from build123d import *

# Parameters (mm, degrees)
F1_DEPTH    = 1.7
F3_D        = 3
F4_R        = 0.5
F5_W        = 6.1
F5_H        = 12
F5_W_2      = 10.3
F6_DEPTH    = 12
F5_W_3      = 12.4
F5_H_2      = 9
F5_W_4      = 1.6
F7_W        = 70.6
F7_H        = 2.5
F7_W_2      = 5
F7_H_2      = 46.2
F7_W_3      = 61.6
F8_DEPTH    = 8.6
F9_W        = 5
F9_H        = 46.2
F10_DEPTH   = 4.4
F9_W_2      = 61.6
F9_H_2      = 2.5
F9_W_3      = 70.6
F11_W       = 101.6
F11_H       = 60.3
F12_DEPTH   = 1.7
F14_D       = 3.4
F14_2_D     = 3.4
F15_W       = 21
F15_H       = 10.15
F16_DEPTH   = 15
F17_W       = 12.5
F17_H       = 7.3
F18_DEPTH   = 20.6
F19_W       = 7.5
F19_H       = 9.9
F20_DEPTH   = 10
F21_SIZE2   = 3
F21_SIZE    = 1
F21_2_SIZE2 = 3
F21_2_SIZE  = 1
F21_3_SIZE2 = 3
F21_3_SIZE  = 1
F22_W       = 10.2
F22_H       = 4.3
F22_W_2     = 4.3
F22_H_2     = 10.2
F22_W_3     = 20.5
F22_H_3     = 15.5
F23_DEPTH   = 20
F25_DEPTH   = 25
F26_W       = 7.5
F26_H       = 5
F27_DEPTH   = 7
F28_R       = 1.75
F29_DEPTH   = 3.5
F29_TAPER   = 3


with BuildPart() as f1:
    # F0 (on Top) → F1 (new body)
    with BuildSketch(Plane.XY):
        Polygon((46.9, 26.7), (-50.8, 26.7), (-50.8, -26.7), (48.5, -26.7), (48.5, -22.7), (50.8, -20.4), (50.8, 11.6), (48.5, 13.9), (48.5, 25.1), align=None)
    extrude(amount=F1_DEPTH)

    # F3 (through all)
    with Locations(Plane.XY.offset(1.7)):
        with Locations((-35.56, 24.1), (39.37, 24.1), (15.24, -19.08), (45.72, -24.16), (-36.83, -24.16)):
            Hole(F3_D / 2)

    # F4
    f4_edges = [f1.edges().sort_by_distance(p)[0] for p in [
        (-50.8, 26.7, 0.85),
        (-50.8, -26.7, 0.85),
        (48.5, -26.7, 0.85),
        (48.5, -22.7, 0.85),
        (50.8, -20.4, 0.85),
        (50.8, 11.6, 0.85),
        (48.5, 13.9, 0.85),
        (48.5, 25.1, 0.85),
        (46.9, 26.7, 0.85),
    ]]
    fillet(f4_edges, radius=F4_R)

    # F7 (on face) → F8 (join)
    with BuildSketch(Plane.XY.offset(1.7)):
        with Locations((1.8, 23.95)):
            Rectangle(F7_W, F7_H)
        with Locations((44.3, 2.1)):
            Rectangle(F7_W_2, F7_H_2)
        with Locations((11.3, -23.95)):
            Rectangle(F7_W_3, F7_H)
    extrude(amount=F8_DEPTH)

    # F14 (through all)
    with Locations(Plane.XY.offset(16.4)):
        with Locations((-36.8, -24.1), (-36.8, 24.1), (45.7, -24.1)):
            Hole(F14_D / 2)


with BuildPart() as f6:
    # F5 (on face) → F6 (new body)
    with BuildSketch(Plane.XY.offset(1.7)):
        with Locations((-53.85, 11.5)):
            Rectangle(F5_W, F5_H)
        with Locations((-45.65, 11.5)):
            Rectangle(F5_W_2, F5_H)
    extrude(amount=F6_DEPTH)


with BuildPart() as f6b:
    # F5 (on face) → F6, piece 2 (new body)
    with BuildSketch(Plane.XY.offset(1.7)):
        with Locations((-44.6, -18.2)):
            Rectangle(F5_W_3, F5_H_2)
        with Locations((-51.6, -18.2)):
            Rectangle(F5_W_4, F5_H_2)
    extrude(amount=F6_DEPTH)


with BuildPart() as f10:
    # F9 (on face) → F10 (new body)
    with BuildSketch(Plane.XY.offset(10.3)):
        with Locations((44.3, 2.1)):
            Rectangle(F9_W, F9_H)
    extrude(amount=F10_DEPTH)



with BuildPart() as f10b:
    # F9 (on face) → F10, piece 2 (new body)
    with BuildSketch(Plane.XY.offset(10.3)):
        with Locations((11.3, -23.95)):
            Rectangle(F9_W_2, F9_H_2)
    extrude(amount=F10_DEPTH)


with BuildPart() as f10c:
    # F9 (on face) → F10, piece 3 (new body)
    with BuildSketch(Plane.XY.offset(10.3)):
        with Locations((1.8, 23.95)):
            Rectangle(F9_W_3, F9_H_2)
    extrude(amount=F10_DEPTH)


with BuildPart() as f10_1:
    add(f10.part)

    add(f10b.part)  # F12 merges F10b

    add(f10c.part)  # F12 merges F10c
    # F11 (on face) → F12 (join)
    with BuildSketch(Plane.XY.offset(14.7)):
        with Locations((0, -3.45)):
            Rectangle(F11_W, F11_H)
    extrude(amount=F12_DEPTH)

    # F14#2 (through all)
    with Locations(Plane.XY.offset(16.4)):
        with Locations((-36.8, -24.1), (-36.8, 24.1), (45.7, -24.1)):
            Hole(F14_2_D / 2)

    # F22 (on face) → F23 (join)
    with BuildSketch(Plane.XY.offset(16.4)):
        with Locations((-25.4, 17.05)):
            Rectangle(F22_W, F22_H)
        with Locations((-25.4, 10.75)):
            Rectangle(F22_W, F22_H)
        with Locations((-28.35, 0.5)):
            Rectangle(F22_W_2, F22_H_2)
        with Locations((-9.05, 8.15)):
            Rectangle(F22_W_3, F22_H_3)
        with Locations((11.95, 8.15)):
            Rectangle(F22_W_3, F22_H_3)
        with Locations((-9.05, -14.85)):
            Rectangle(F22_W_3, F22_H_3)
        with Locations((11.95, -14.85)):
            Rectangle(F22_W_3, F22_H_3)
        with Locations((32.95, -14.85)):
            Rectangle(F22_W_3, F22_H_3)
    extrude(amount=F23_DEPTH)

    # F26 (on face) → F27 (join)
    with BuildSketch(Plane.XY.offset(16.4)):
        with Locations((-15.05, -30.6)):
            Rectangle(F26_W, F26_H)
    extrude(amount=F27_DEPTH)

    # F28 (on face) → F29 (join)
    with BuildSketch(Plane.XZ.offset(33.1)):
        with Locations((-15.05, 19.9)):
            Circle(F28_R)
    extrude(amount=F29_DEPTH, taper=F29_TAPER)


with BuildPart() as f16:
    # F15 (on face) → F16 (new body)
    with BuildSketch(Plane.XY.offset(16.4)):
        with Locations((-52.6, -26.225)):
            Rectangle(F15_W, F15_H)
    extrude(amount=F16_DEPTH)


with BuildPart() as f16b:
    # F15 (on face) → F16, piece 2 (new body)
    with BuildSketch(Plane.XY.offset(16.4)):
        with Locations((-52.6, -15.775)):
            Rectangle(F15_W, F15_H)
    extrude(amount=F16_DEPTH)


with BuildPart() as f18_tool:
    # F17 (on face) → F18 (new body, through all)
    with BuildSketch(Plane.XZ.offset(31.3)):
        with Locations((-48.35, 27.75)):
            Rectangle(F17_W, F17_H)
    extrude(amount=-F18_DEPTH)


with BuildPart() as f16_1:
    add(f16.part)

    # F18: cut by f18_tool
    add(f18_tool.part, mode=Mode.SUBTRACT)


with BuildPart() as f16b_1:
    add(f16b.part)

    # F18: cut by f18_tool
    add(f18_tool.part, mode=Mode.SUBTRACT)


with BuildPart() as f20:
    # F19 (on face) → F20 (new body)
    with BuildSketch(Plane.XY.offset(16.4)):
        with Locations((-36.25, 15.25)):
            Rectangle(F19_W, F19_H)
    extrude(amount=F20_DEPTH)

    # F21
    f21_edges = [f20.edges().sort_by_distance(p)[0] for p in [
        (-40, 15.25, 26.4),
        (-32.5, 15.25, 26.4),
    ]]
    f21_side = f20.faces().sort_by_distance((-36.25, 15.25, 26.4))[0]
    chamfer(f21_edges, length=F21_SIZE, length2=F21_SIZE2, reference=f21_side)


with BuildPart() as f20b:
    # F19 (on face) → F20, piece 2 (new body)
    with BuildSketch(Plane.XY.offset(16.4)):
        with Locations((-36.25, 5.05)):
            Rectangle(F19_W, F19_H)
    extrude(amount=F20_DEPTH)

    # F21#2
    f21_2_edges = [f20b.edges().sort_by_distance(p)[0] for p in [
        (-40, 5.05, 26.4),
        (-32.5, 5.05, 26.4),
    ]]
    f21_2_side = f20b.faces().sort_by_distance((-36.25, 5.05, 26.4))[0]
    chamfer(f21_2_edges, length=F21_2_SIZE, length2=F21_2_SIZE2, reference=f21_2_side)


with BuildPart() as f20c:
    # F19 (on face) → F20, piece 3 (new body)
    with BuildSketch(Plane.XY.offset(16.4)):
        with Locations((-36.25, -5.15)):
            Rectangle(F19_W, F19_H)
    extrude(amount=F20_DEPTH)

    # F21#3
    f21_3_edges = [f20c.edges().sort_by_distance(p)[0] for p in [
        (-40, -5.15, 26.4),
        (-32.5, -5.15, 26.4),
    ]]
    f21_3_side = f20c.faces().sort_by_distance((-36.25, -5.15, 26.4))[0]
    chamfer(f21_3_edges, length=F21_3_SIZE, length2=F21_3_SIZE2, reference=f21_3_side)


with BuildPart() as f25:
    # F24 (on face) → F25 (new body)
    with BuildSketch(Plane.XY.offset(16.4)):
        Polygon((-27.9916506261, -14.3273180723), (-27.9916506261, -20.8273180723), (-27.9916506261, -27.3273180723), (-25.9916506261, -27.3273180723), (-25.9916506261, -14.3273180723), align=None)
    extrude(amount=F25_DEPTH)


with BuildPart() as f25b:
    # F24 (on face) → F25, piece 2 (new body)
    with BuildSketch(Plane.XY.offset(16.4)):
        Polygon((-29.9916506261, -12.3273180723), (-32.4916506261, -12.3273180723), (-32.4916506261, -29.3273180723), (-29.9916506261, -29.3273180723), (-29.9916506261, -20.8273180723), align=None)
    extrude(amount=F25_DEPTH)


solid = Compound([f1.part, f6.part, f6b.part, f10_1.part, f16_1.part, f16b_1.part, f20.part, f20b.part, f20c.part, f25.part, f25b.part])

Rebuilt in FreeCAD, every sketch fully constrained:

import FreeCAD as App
import Part
import Sketcher

V = App.Vector
Q = App.Units.Quantity


def edges_at(feature, points):
    """Names of the edges that pass closest to the given points."""
    edges = feature.Shape.Edges
    near = lambda p: min(range(len(edges)), key=lambda i: edges[i].distToShape(Part.Vertex(*p))[0])
    return sorted({f"Edge{near(p) + 1}" for p in points})


def add_polygon(sketch, points):
    """Adds a closed chain of lines whose ends are joined by coincident constraints."""
    first, n = sketch.GeometryCount, len(points)
    for a, b in zip(points, points[1:] + points[:1]):
        sketch.addGeometry(Part.LineSegment(App.Vector(*a, 0), App.Vector(*b, 0)), False)
    for i in range(n):
        sketch.addConstraint(Sketcher.Constraint("Coincident", first + i, 2, first + (i + 1) % n, 1))

doc = App.newDocument("Part")
body = doc.addObject("PartDesign::Body", "Body")

# Sketch on XY plane
sketch1 = body.newObject("Sketcher::SketchObject", "Sketch")
sketch1.AttachmentSupport = (doc.getObject("XY_Plane"), [""])
sketch1.MapMode = "FlatFace"
add_polygon(sketch1, [(46.9, 26.7), (-50.8, 26.7), (-50.8, -26.7), (48.5, -26.7), (48.5, -22.7), (50.8, -20.4), (50.8, 11.6), (48.5, 13.9), (48.5, 25.1)])  # lines 0-8
sketch1.addConstraint(Sketcher.Constraint("Horizontal", 0))
sketch1.addConstraint(Sketcher.Constraint("Vertical", 1))
sketch1.addConstraint(Sketcher.Constraint("Horizontal", 2))
sketch1.addConstraint(Sketcher.Constraint("Vertical", 3))
sketch1.addConstraint(Sketcher.Constraint("Vertical", 5))
sketch1.addConstraint(Sketcher.Constraint("Vertical", 7))
sketch1.addConstraint(Sketcher.Constraint("Perpendicular", 4, 6))
sketch1.addConstraint(Sketcher.Constraint("Parallel", 6, 8))
sketch1.addConstraint(Sketcher.Constraint("Vertical", 3, 2, 6, 2))
sketch1.addConstraint(Sketcher.Constraint("Equal", 4, 6))
sketch1.addConstraint(Sketcher.Constraint("DistanceY", 3, 1, 3, 2, Q("4 mm")))
sketch1.addConstraint(Sketcher.Constraint("DistanceY", 5, 1, 5, 2, Q("32 mm")))
sketch1.addConstraint(Sketcher.Constraint("DistanceX", 0, 2, 0, 1, Q("97.7 mm")))
sketch1.addConstraint(Sketcher.Constraint("DistanceX", 2, 1, 2, 2, Q("99.3 mm")))
sketch1.addConstraint(Sketcher.Constraint("DistanceY", 1, 2, 1, 1, Q("53.4 mm")))
sketch1.addConstraint(Sketcher.Constraint("DistanceY", 7, 1, 7, 2, Q("11.2 mm")))
sketch1.addConstraint(Sketcher.Constraint("DistanceX", 0, 2, -1, 1, Q("50.8 mm")))
sketch1.addConstraint(Sketcher.Constraint("DistanceY", -1, 1, 0, 2, Q("26.7 mm")))
pad1 = body.newObject("PartDesign::Pad", "Pad")
pad1.Profile = sketch1
pad1.Length = 1.7

# Sketch on XY plane
sketch2 = body.newObject("Sketcher::SketchObject", "Sketch001")
sketch2.AttachmentSupport = (doc.getObject("XY_Plane"), [""])
sketch2.MapMode = "FlatFace"
sketch2.AttachmentOffset = App.Placement(V(0, 0, 1.7), App.Rotation())
sketch2.addGeometry(Part.Circle(V(-35.6, 24.1, 0), V(0, 0, 1), 1.5), False)
sketch2.addGeometry(Part.Circle(V(39.4, 24.1, 0), V(0, 0, 1), 1.5), False)
sketch2.addGeometry(Part.Circle(V(15.2, -19.1, 0), V(0, 0, 1), 1.5), False)
sketch2.addGeometry(Part.Circle(V(45.7, -24.2, 0), V(0, 0, 1), 1.5), False)
sketch2.addGeometry(Part.Circle(V(-36.8, -24.2, 0), V(0, 0, 1), 1.5), False)
sketch2.addConstraint(Sketcher.Constraint("Equal", 0, 1))
sketch2.addConstraint(Sketcher.Constraint("Equal", 1, 2))
sketch2.addConstraint(Sketcher.Constraint("Equal", 2, 3))
sketch2.addConstraint(Sketcher.Constraint("Equal", 3, 4))
sketch2.addConstraint(Sketcher.Constraint("Horizontal", 0, 3, 1, 3))
sketch2.addConstraint(Sketcher.Constraint("Horizontal", 3, 3, 4, 3))
sketch2.addConstraint(Sketcher.Constraint("Diameter", 0, Q("3 mm")))
sketch2.addConstraint(Sketcher.Constraint("DistanceY", -1, 1, 0, 3, Q("24.1 mm")))
sketch2.addConstraint(Sketcher.Constraint("DistanceX", 0, 3, 2, 3, Q("50.8 mm")))
sketch2.addConstraint(Sketcher.Constraint("DistanceX", 4, 3, 1, 3, Q("76.2 mm")))
sketch2.addConstraint(Sketcher.Constraint("DistanceX", 0, 3, -1, 1, Q("35.56 mm")))
sketch2.addConstraint(Sketcher.Constraint("DistanceX", -1, 1, 1, 3, Q("39.37 mm")))
sketch2.addConstraint(Sketcher.Constraint("DistanceY", 2, 3, -1, 1, Q("19.08 mm")))
sketch2.addConstraint(Sketcher.Constraint("DistanceX", -1, 1, 3, 3, Q("45.72 mm")))
sketch2.addConstraint(Sketcher.Constraint("DistanceY", 3, 3, -1, 1, Q("24.16 mm")))
doc.recompute()
hole = body.newObject("PartDesign::Hole", "Hole")
hole.Profile = sketch2
hole.ThreadType = "None"
hole.Diameter = 3
hole.DepthType = "ThroughAll"
doc.recompute()

fillet = body.newObject("PartDesign::Fillet", "Fillet")
fillet.Base = (hole, edges_at(hole, [
    (-50.8, 26.7, 0.85),
    (-50.8, -26.7, 0.85),
    (48.5, -26.7, 0.85),
    (48.5, -22.7, 0.85),
    (50.8, -20.4, 0.85),
    (50.8, 11.6, 0.85),
    (48.5, 13.9, 0.85),
    (48.5, 25.1, 0.85),
    (46.9, 26.7, 0.85),
]))
fillet.Radius = 0.5

# Sketch on XY plane
sketch3 = body.newObject("Sketcher::SketchObject", "Sketch002")
sketch3.AttachmentSupport = (doc.getObject("XY_Plane"), [""])
sketch3.MapMode = "FlatFace"
sketch3.AttachmentOffset = App.Placement(V(0, 0, 1.7), App.Rotation())
add_polygon(sketch3, [(-33.5, 25.2), (-33.5, 22.7), (37.1, 22.7), (37.1, 25.2)])  # lines 0-3
add_polygon(sketch3, [(41.8, 25.2), (41.8, -21), (46.8, -21), (46.8, 25.2)])  # lines 4-7
add_polygon(sketch3, [(-19.5, -22.7), (-19.5, -25.2), (42.1, -25.2), (42.1, -22.7)])  # lines 8-11
sketch3.addConstraint(Sketcher.Constraint("Vertical", 0))
sketch3.addConstraint(Sketcher.Constraint("Horizontal", 1))
sketch3.addConstraint(Sketcher.Constraint("Vertical", 2))
sketch3.addConstraint(Sketcher.Constraint("Horizontal", 3))
sketch3.addConstraint(Sketcher.Constraint("Vertical", 4))
sketch3.addConstraint(Sketcher.Constraint("Horizontal", 5))
sketch3.addConstraint(Sketcher.Constraint("Vertical", 6))
sketch3.addConstraint(Sketcher.Constraint("Horizontal", 7))
sketch3.addConstraint(Sketcher.Constraint("Vertical", 8))
sketch3.addConstraint(Sketcher.Constraint("Horizontal", 9))
sketch3.addConstraint(Sketcher.Constraint("Vertical", 10))
sketch3.addConstraint(Sketcher.Constraint("Horizontal", 11))
sketch3.addConstraint(Sketcher.Constraint("Horizontal", 3, 2, 6, 2))
sketch3.addConstraint(Sketcher.Constraint("Equal", 2, 8))
sketch3.addConstraint(Sketcher.Constraint("DistanceX", 5, 1, 5, 2, Q("5 mm")))
sketch3.addConstraint(Sketcher.Constraint("DistanceX", 1, 1, 1, 2, Q("70.6 mm")))
sketch3.addConstraint(Sketcher.Constraint("DistanceX", 9, 1, 9, 2, Q("61.6 mm")))
sketch3.addConstraint(Sketcher.Constraint("DistanceY", 0, 2, 0, 1, Q("2.5 mm")))
sketch3.addConstraint(Sketcher.Constraint("DistanceY", 4, 2, 4, 1, Q("46.2 mm")))
sketch3.addConstraint(Sketcher.Constraint("DistanceY", 4, 2, -1, 1, Q("21 mm")))
sketch3.addConstraint(Sketcher.Constraint("DistanceX", 0, 2, 8, 2, Q("14 mm")))
sketch3.addConstraint(Sketcher.Constraint("DistanceX", 0, 2, -1, 1, Q("33.5 mm")))
sketch3.addConstraint(Sketcher.Constraint("DistanceX", -1, 1, 4, 2, Q("41.8 mm")))
sketch3.addConstraint(Sketcher.Constraint("DistanceY", 8, 2, -1, 1, Q("25.2 mm")))
pad2 = body.newObject("PartDesign::Pad", "Pad001")
pad2.Profile = sketch3
pad2.Length = 8.6

# Sketch on XY plane
sketch4 = body.newObject("Sketcher::SketchObject", "Sketch003")
sketch4.AttachmentSupport = (doc.getObject("XY_Plane"), [""])
sketch4.MapMode = "FlatFace"
sketch4.AttachmentOffset = App.Placement(V(0, 0, 16.4), App.Rotation())
sketch4.addGeometry(Part.Circle(V(-36.8, -24.1, 0), V(0, 0, 1), 1.7), False)
sketch4.addGeometry(Part.Circle(V(-36.8, 24.1, 0), V(0, 0, 1), 1.7), False)
sketch4.addGeometry(Part.Circle(V(45.7, -24.1, 0), V(0, 0, 1), 1.7), False)
sketch4.addConstraint(Sketcher.Constraint("Equal", 0, 1))
sketch4.addConstraint(Sketcher.Constraint("Equal", 1, 2))
sketch4.addConstraint(Sketcher.Constraint("Symmetric", 0, 3, 1, 3, -1))
sketch4.addConstraint(Sketcher.Constraint("Horizontal", 0, 3, 2, 3))
sketch4.addConstraint(Sketcher.Constraint("Diameter", 0, Q("3.4 mm")))
sketch4.addConstraint(Sketcher.Constraint("DistanceX", 0, 3, -1, 1, Q("36.8 mm")))
sketch4.addConstraint(Sketcher.Constraint("DistanceY", 0, 3, -1, 1, Q("24.1 mm")))
sketch4.addConstraint(Sketcher.Constraint("DistanceX", -1, 1, 2, 3, Q("45.7 mm")))
doc.recompute()
hole2 = body.newObject("PartDesign::Hole", "Hole001")
hole2.Profile = sketch4
hole2.ThreadType = "None"
hole2.Diameter = 3.4
hole2.DepthType = "ThroughAll"
body2 = doc.addObject("PartDesign::Body", "Body001")

# Sketch on XY plane
sketch5 = body2.newObject("Sketcher::SketchObject", "Sketch004")
sketch5.AttachmentSupport = (doc.getObject("XY_Plane001"), [""])
sketch5.MapMode = "FlatFace"
sketch5.AttachmentOffset = App.Placement(V(0, 0, 1.7), App.Rotation())
add_polygon(sketch5, [(-57, 18), (-57, 6), (-40, 6), (-40, 18)])  # lines 0-3
sketch5.addConstraint(Sketcher.Constraint("Vertical", 0))
sketch5.addConstraint(Sketcher.Constraint("Horizontal", 1))
sketch5.addConstraint(Sketcher.Constraint("Vertical", 2))
sketch5.addConstraint(Sketcher.Constraint("Horizontal", 3))
sketch5.addConstraint(Sketcher.Constraint("DistanceY", 0, 2, 0, 1, Q("12 mm")))
sketch5.addConstraint(Sketcher.Constraint("DistanceX", 1, 1, 1, 2, Q("16.4 mm")))
sketch5.addConstraint(Sketcher.Constraint("DistanceX", 0, 2, -1, 1, Q("56.9 mm")))
sketch5.addConstraint(Sketcher.Constraint("DistanceY", -1, 1, 0, 2, Q("5.5 mm")))
pad3 = body2.newObject("PartDesign::Pad", "Pad002")
pad3.Profile = sketch5
pad3.Length = 12
body3 = doc.addObject("PartDesign::Body", "Body002")

# Sketch on XY plane
sketch6 = body3.newObject("Sketcher::SketchObject", "Sketch005")
sketch6.AttachmentSupport = (doc.getObject("XY_Plane002"), [""])
sketch6.MapMode = "FlatFace"
sketch6.AttachmentOffset = App.Placement(V(0, 0, 1.7), App.Rotation())
add_polygon(sketch6, [(-38, -23), (-38, -14), (-52, -14), (-52, -23)])  # lines 0-3
sketch6.addConstraint(Sketcher.Constraint("Vertical", 0))
sketch6.addConstraint(Sketcher.Constraint("Horizontal", 1))
sketch6.addConstraint(Sketcher.Constraint("Vertical", 2))
sketch6.addConstraint(Sketcher.Constraint("Horizontal", 3))
sketch6.addConstraint(Sketcher.Constraint("DistanceX", 1, 2, 1, 1, Q("14 mm")))
sketch6.addConstraint(Sketcher.Constraint("DistanceY", 0, 1, 0, 2, Q("9 mm")))
sketch6.addConstraint(Sketcher.Constraint("DistanceX", 0, 2, -1, 1, Q("38.4 mm")))
sketch6.addConstraint(Sketcher.Constraint("DistanceY", 0, 2, -1, 1, Q("13.7 mm")))
pad4 = body3.newObject("PartDesign::Pad", "Pad003")
pad4.Profile = sketch6
pad4.Length = 12
body4 = doc.addObject("PartDesign::Body", "Body003")

# Sketch on XY plane
sketch7 = body4.newObject("Sketcher::SketchObject", "Sketch006")
sketch7.AttachmentSupport = (doc.getObject("XY_Plane003"), [""])
sketch7.MapMode = "FlatFace"
sketch7.AttachmentOffset = App.Placement(V(0, 0, 10.3), App.Rotation())
add_polygon(sketch7, [(42, 25), (42, -21), (47, -21), (47, 25)])  # lines 0-3
sketch7.addConstraint(Sketcher.Constraint("Vertical", 0))
sketch7.addConstraint(Sketcher.Constraint("Horizontal", 1))
sketch7.addConstraint(Sketcher.Constraint("Vertical", 2))
sketch7.addConstraint(Sketcher.Constraint("Horizontal", 3))
sketch7.addConstraint(Sketcher.Constraint("DistanceX", 1, 1, 1, 2, Q("5 mm")))
sketch7.addConstraint(Sketcher.Constraint("DistanceY", 0, 2, 0, 1, Q("46.2 mm")))
sketch7.addConstraint(Sketcher.Constraint("DistanceY", 0, 2, -1, 1, Q("21 mm")))
sketch7.addConstraint(Sketcher.Constraint("DistanceX", -1, 1, 0, 2, Q("41.8 mm")))
pad5 = body4.newObject("PartDesign::Pad", "Pad004")
pad5.Profile = sketch7
pad5.Length = 4.4
body5 = doc.addObject("PartDesign::Body", "Body004")

# Sketch on XY plane
sketch8 = body5.newObject("Sketcher::SketchObject", "Sketch007")
sketch8.AttachmentSupport = (doc.getObject("XY_Plane004"), [""])
sketch8.MapMode = "FlatFace"
sketch8.AttachmentOffset = App.Placement(V(0, 0, 10.3), App.Rotation())
add_polygon(sketch8, [(-19.5, -22.7), (-19.5, -25.2), (42.1, -25.2), (42.1, -22.7)])  # lines 0-3
sketch8.addConstraint(Sketcher.Constraint("Vertical", 0))
sketch8.addConstraint(Sketcher.Constraint("Horizontal", 1))
sketch8.addConstraint(Sketcher.Constraint("Vertical", 2))
sketch8.addConstraint(Sketcher.Constraint("Horizontal", 3))
sketch8.addConstraint(Sketcher.Constraint("DistanceX", 1, 1, 1, 2, Q("61.6 mm")))
sketch8.addConstraint(Sketcher.Constraint("DistanceY", 0, 2, 0, 1, Q("2.5 mm")))
sketch8.addConstraint(Sketcher.Constraint("DistanceX", 0, 2, -1, 1, Q("19.5 mm")))
sketch8.addConstraint(Sketcher.Constraint("DistanceY", 0, 2, -1, 1, Q("25.2 mm")))
pad6 = body5.newObject("PartDesign::Pad", "Pad005")
pad6.Profile = sketch8
pad6.Length = 4.4
body6 = doc.addObject("PartDesign::Body", "Body005")

# Sketch on XY plane
sketch9 = body6.newObject("Sketcher::SketchObject", "Sketch008")
sketch9.AttachmentSupport = (doc.getObject("XY_Plane005"), [""])
sketch9.MapMode = "FlatFace"
sketch9.AttachmentOffset = App.Placement(V(0, 0, 10.3), App.Rotation())
add_polygon(sketch9, [(-33.5, 25.2), (-33.5, 22.7), (37.1, 22.7), (37.1, 25.2)])  # lines 0-3
sketch9.addConstraint(Sketcher.Constraint("Vertical", 0))
sketch9.addConstraint(Sketcher.Constraint("Horizontal", 1))
sketch9.addConstraint(Sketcher.Constraint("Vertical", 2))
sketch9.addConstraint(Sketcher.Constraint("Horizontal", 3))
sketch9.addConstraint(Sketcher.Constraint("DistanceX", 1, 1, 1, 2, Q("70.6 mm")))
sketch9.addConstraint(Sketcher.Constraint("DistanceY", 0, 2, 0, 1, Q("2.5 mm")))
sketch9.addConstraint(Sketcher.Constraint("DistanceX", 0, 2, -1, 1, Q("33.5 mm")))
sketch9.addConstraint(Sketcher.Constraint("DistanceY", -1, 1, 0, 2, Q("22.7 mm")))
pad7 = body6.newObject("PartDesign::Pad", "Pad006")
pad7.Profile = sketch9
pad7.Length = 4.4
body4.AllowCompound = True
doc.recompute()

boolean = body4.newObject("PartDesign::Boolean", "Boolean")
boolean.Type = "Fuse"
boolean.addObjects([body5])
doc.recompute()

boolean2 = body4.newObject("PartDesign::Boolean", "Boolean001")
boolean2.Type = "Fuse"
boolean2.addObjects([body6])

# Sketch on XY plane
sketch10 = body4.newObject("Sketcher::SketchObject", "Sketch009")
sketch10.AttachmentSupport = (doc.getObject("XY_Plane003"), [""])
sketch10.MapMode = "FlatFace"
sketch10.AttachmentOffset = App.Placement(V(0, 0, 14.7), App.Rotation())
add_polygon(sketch10, [(-51, 27), (-51, -34), (51, -34), (51, 27)])  # lines 0-3
sketch10.addConstraint(Sketcher.Constraint("Vertical", 0))
sketch10.addConstraint(Sketcher.Constraint("Horizontal", 1))
sketch10.addConstraint(Sketcher.Constraint("Vertical", 2))
sketch10.addConstraint(Sketcher.Constraint("Horizontal", 3))
sketch10.addConstraint(Sketcher.Constraint("DistanceX", 1, 1, 1, 2, Q("101.6 mm")))
sketch10.addConstraint(Sketcher.Constraint("DistanceY", 0, 2, 0, 1, Q("60.3 mm")))
sketch10.addConstraint(Sketcher.Constraint("DistanceX", 0, 2, -1, 1, Q("50.8 mm")))
sketch10.addConstraint(Sketcher.Constraint("DistanceY", 0, 2, -1, 1, Q("33.6 mm")))
pad8 = body4.newObject("PartDesign::Pad", "Pad007")
pad8.Profile = sketch10
pad8.Length = 1.7

# Sketch on XY plane
sketch11 = body4.newObject("Sketcher::SketchObject", "Sketch010")
sketch11.AttachmentSupport = (doc.getObject("XY_Plane003"), [""])
sketch11.MapMode = "FlatFace"
sketch11.AttachmentOffset = App.Placement(V(0, 0, 16.4), App.Rotation())
sketch11.addGeometry(Part.Circle(V(-36.8, -24.1, 0), V(0, 0, 1), 1.7), False)
sketch11.addGeometry(Part.Circle(V(-36.8, 24.1, 0), V(0, 0, 1), 1.7), False)
sketch11.addGeometry(Part.Circle(V(45.7, -24.1, 0), V(0, 0, 1), 1.7), False)
sketch11.addConstraint(Sketcher.Constraint("Equal", 0, 1))
sketch11.addConstraint(Sketcher.Constraint("Equal", 1, 2))
sketch11.addConstraint(Sketcher.Constraint("Symmetric", 0, 3, 1, 3, -1))
sketch11.addConstraint(Sketcher.Constraint("Horizontal", 0, 3, 2, 3))
sketch11.addConstraint(Sketcher.Constraint("Diameter", 0, Q("3.4 mm")))
sketch11.addConstraint(Sketcher.Constraint("DistanceX", 0, 3, -1, 1, Q("36.8 mm")))
sketch11.addConstraint(Sketcher.Constraint("DistanceY", 0, 3, -1, 1, Q("24.1 mm")))
sketch11.addConstraint(Sketcher.Constraint("DistanceX", -1, 1, 2, 3, Q("45.7 mm")))
doc.recompute()
hole3 = body4.newObject("PartDesign::Hole", "Hole002")
hole3.Profile = sketch11
hole3.ThreadType = "None"
hole3.Diameter = 3.4
hole3.DepthType = "ThroughAll"

# Sketch on XY plane
sketch12 = body4.newObject("Sketcher::SketchObject", "Sketch011")
sketch12.AttachmentSupport = (doc.getObject("XY_Plane003"), [""])
sketch12.MapMode = "FlatFace"
sketch12.AttachmentOffset = App.Placement(V(0, 0, 16.4), App.Rotation())
add_polygon(sketch12, [(-30.5, 19.2), (-30.5, 14.9), (-20.3, 14.9), (-20.3, 19.2)])  # lines 0-3
add_polygon(sketch12, [(-30.5, 12.9), (-30.5, 8.6), (-20.3, 8.6), (-20.3, 12.9)])  # lines 4-7
add_polygon(sketch12, [(-30.5, 5.6), (-30.5, -4.6), (-26.2, -4.6), (-26.2, 5.6)])  # lines 8-11
add_polygon(sketch12, [(-19.3, 15.9), (-19.3, 0.4), (1.2, 0.4), (1.2, 15.9)])  # lines 12-15
add_polygon(sketch12, [(1.7, 15.9), (1.7, 0.4), (22.2, 0.4), (22.2, 15.9)])  # lines 16-19
add_polygon(sketch12, [(-19.3, -7.1), (-19.3, -22.6), (1.2, -22.6), (1.2, -7.1)])  # lines 20-23
add_polygon(sketch12, [(1.7, -7.1), (1.7, -22.6), (22.2, -22.6), (22.2, -7.1)])  # lines 24-27
add_polygon(sketch12, [(22.7, -7.1), (22.7, -22.6), (43.2, -22.6), (43.2, -7.1)])  # lines 28-31
sketch12.addConstraint(Sketcher.Constraint("Vertical", 0))
sketch12.addConstraint(Sketcher.Constraint("Horizontal", 1))
sketch12.addConstraint(Sketcher.Constraint("Vertical", 2))
sketch12.addConstraint(Sketcher.Constraint("Horizontal", 3))
sketch12.addConstraint(Sketcher.Constraint("Vertical", 4))
sketch12.addConstraint(Sketcher.Constraint("Horizontal", 5))
sketch12.addConstraint(Sketcher.Constraint("Vertical", 6))
sketch12.addConstraint(Sketcher.Constraint("Horizontal", 7))
sketch12.addConstraint(Sketcher.Constraint("Vertical", 8))
sketch12.addConstraint(Sketcher.Constraint("Horizontal", 9))
sketch12.addConstraint(Sketcher.Constraint("Vertical", 10))
sketch12.addConstraint(Sketcher.Constraint("Horizontal", 11))
sketch12.addConstraint(Sketcher.Constraint("Vertical", 12))
sketch12.addConstraint(Sketcher.Constraint("Horizontal", 13))
sketch12.addConstraint(Sketcher.Constraint("Vertical", 14))
sketch12.addConstraint(Sketcher.Constraint("Horizontal", 15))
sketch12.addConstraint(Sketcher.Constraint("Vertical", 16))
sketch12.addConstraint(Sketcher.Constraint("Horizontal", 17))
sketch12.addConstraint(Sketcher.Constraint("Vertical", 18))
sketch12.addConstraint(Sketcher.Constraint("Horizontal", 19))
sketch12.addConstraint(Sketcher.Constraint("Vertical", 20))
sketch12.addConstraint(Sketcher.Constraint("Horizontal", 21))
sketch12.addConstraint(Sketcher.Constraint("Vertical", 22))
sketch12.addConstraint(Sketcher.Constraint("Horizontal", 23))
sketch12.addConstraint(Sketcher.Constraint("Vertical", 24))
sketch12.addConstraint(Sketcher.Constraint("Horizontal", 25))
sketch12.addConstraint(Sketcher.Constraint("Vertical", 26))
sketch12.addConstraint(Sketcher.Constraint("Horizontal", 27))
sketch12.addConstraint(Sketcher.Constraint("Vertical", 28))
sketch12.addConstraint(Sketcher.Constraint("Horizontal", 29))
sketch12.addConstraint(Sketcher.Constraint("Vertical", 30))
sketch12.addConstraint(Sketcher.Constraint("Horizontal", 31))
sketch12.addConstraint(Sketcher.Constraint("Horizontal", 13, 2, 16, 2))
sketch12.addConstraint(Sketcher.Constraint("Horizontal", 15, 2, 18, 2))
sketch12.addConstraint(Sketcher.Constraint("Horizontal", 21, 2, 24, 2))
sketch12.addConstraint(Sketcher.Constraint("Horizontal", 23, 2, 26, 2))
sketch12.addConstraint(Sketcher.Constraint("Horizontal", 25, 2, 28, 2))
sketch12.addConstraint(Sketcher.Constraint("Horizontal", 27, 2, 30, 2))
sketch12.addConstraint(Sketcher.Constraint("Vertical", 3, 2, 4, 2))
sketch12.addConstraint(Sketcher.Constraint("Vertical", 2, 2, 5, 2))
sketch12.addConstraint(Sketcher.Constraint("Vertical", 7, 2, 8, 2))
sketch12.addConstraint(Sketcher.Constraint("Vertical", 15, 2, 20, 2))
sketch12.addConstraint(Sketcher.Constraint("Vertical", 14, 2, 21, 2))
sketch12.addConstraint(Sketcher.Constraint("Vertical", 19, 2, 24, 2))
sketch12.addConstraint(Sketcher.Constraint("Vertical", 18, 2, 25, 2))
sketch12.addConstraint(Sketcher.Constraint("Equal", 15, 17))
sketch12.addConstraint(Sketcher.Constraint("Equal", 27, 29))
sketch12.addConstraint(Sketcher.Constraint("Equal", 11, 0))
sketch12.addConstraint(Sketcher.Constraint("Equal", 2, 4))
sketch12.addConstraint(Sketcher.Constraint("Equal", 7, 8))
sketch12.addConstraint(Sketcher.Constraint("Equal", 18, 20))
sketch12.addConstraint(Sketcher.Constraint("DistanceX", 1, 1, 1, 2, Q("10.2 mm")))
sketch12.addConstraint(Sketcher.Constraint("DistanceX", 9, 1, 9, 2, Q("4.3 mm")))
sketch12.addConstraint(Sketcher.Constraint("DistanceX", 13, 1, 13, 2, Q("20.5 mm")))
sketch12.addConstraint(Sketcher.Constraint("DistanceY", 12, 2, 12, 1, Q("15.5 mm")))
sketch12.addConstraint(Sketcher.Constraint("DistanceY", 6, 2, 1, 2, Q("2 mm")))
sketch12.addConstraint(Sketcher.Constraint("DistanceY", 10, 2, 4, 2, Q("3 mm")))
sketch12.addConstraint(Sketcher.Constraint("DistanceX", 5, 2, 12, 2, Q("1 mm")))
sketch12.addConstraint(Sketcher.Constraint("DistanceY", 9, 2, 12, 2, Q("5 mm")))
sketch12.addConstraint(Sketcher.Constraint("DistanceX", 12, 2, 16, 2, Q("21 mm")))
sketch12.addConstraint(Sketcher.Constraint("DistanceY", 20, 2, 9, 2, Q("18 mm")))
sketch12.addConstraint(Sketcher.Constraint("DistanceX", 24, 2, 28, 2, Q("21 mm")))
sketch12.addConstraint(Sketcher.Constraint("DistanceX", 0, 2, -1, 1, Q("30.5 mm")))
sketch12.addConstraint(Sketcher.Constraint("DistanceY", -1, 1, 0, 2, Q("14.9 mm")))
pad9 = body4.newObject("PartDesign::Pad", "Pad008")
pad9.Profile = sketch12
pad9.Length = 20

# Sketch on XY plane
sketch13 = body4.newObject("Sketcher::SketchObject", "Sketch012")
sketch13.AttachmentSupport = (doc.getObject("XY_Plane003"), [""])
sketch13.MapMode = "FlatFace"
sketch13.AttachmentOffset = App.Placement(V(0, 0, 16.4), App.Rotation())
add_polygon(sketch13, [(-19, -28), (-19, -33), (-11, -33), (-11, -28)])  # lines 0-3
sketch13.addConstraint(Sketcher.Constraint("Vertical", 0))
sketch13.addConstraint(Sketcher.Constraint("Horizontal", 1))
sketch13.addConstraint(Sketcher.Constraint("Vertical", 2))
sketch13.addConstraint(Sketcher.Constraint("Horizontal", 3))
sketch13.addConstraint(Sketcher.Constraint("DistanceY", 0, 2, 0, 1, Q("5 mm")))
sketch13.addConstraint(Sketcher.Constraint("DistanceX", 1, 1, 1, 2, Q("7.5 mm")))
sketch13.addConstraint(Sketcher.Constraint("DistanceX", 0, 2, -1, 1, Q("18.8 mm")))
sketch13.addConstraint(Sketcher.Constraint("DistanceY", 0, 2, -1, 1, Q("33.1 mm")))
pad10 = body4.newObject("PartDesign::Pad", "Pad009")
pad10.Profile = sketch13
pad10.Length = 7

# Sketch on XZ plane
sketch14 = body4.newObject("Sketcher::SketchObject", "Sketch013")
sketch14.AttachmentSupport = (doc.getObject("XZ_Plane003"), [""])
sketch14.MapMode = "FlatFace"
sketch14.AttachmentOffset = App.Placement(V(0, 0, 33.1), App.Rotation())
sketch14.addGeometry(Part.Circle(V(-15.1, 19.9, 0), V(0, 0, 1), 1.8), False)
sketch14.addConstraint(Sketcher.Constraint("Diameter", 0, Q("3.5 mm")))
sketch14.addConstraint(Sketcher.Constraint("DistanceY", -1, 1, 0, 3, Q("19.9 mm")))
sketch14.addConstraint(Sketcher.Constraint("DistanceX", 0, 3, -1, 1, Q("15.05 mm")))
pad11 = body4.newObject("PartDesign::Pad", "Pad010")
pad11.Profile = sketch14
pad11.Length = 3.5
pad11.TaperAngle = -3
body7 = doc.addObject("PartDesign::Body", "Body006")

# Sketch on XY plane
sketch15 = body7.newObject("Sketcher::SketchObject", "Sketch014")
sketch15.AttachmentSupport = (doc.getObject("XY_Plane006"), [""])
sketch15.MapMode = "FlatFace"
sketch15.AttachmentOffset = App.Placement(V(0, 0, 16.4), App.Rotation())
add_polygon(sketch15, [(-63, -21), (-63, -31), (-42, -31), (-42, -21)])  # lines 0-3
sketch15.addConstraint(Sketcher.Constraint("Vertical", 0))
sketch15.addConstraint(Sketcher.Constraint("Horizontal", 1))
sketch15.addConstraint(Sketcher.Constraint("Vertical", 2))
sketch15.addConstraint(Sketcher.Constraint("Horizontal", 3))
sketch15.addConstraint(Sketcher.Constraint("DistanceX", 1, 1, 1, 2, Q("21 mm")))
sketch15.addConstraint(Sketcher.Constraint("DistanceY", 0, 2, 0, 1, Q("10.15 mm")))
sketch15.addConstraint(Sketcher.Constraint("DistanceX", 0, 2, -1, 1, Q("63.1 mm")))
sketch15.addConstraint(Sketcher.Constraint("DistanceY", 0, 2, -1, 1, Q("31.3 mm")))
pad12 = body7.newObject("PartDesign::Pad", "Pad011")
pad12.Profile = sketch15
pad12.Length = 15
body8 = doc.addObject("PartDesign::Body", "Body007")

# Sketch on XY plane
sketch16 = body8.newObject("Sketcher::SketchObject", "Sketch015")
sketch16.AttachmentSupport = (doc.getObject("XY_Plane007"), [""])
sketch16.MapMode = "FlatFace"
sketch16.AttachmentOffset = App.Placement(V(0, 0, 16.4), App.Rotation())
add_polygon(sketch16, [(-63, -11), (-63, -21), (-42, -21), (-42, -11)])  # lines 0-3
sketch16.addConstraint(Sketcher.Constraint("Vertical", 0))
sketch16.addConstraint(Sketcher.Constraint("Horizontal", 1))
sketch16.addConstraint(Sketcher.Constraint("Vertical", 2))
sketch16.addConstraint(Sketcher.Constraint("Horizontal", 3))
sketch16.addConstraint(Sketcher.Constraint("DistanceX", 1, 1, 1, 2, Q("21 mm")))
sketch16.addConstraint(Sketcher.Constraint("DistanceY", 0, 2, 0, 1, Q("10.15 mm")))
sketch16.addConstraint(Sketcher.Constraint("DistanceX", 0, 2, -1, 1, Q("63.1 mm")))
sketch16.addConstraint(Sketcher.Constraint("DistanceY", 2, 2, -1, 1, Q("10.7 mm")))
pad13 = body8.newObject("PartDesign::Pad", "Pad012")
pad13.Profile = sketch16
pad13.Length = 15
body9 = doc.addObject("PartDesign::Body", "Body008")

# Sketch on XZ plane
sketch17 = body9.newObject("Sketcher::SketchObject", "Sketch016")
sketch17.AttachmentSupport = (doc.getObject("XZ_Plane008"), [""])
sketch17.MapMode = "FlatFace"
sketch17.AttachmentOffset = App.Placement(V(0, 0, 31.3), App.Rotation())
add_polygon(sketch17, [(-55, 31), (-55, 24), (-42, 24), (-42, 31)])  # lines 0-3
sketch17.addConstraint(Sketcher.Constraint("Vertical", 0))
sketch17.addConstraint(Sketcher.Constraint("Horizontal", 1))
sketch17.addConstraint(Sketcher.Constraint("Vertical", 2))
sketch17.addConstraint(Sketcher.Constraint("Horizontal", 3))
sketch17.addConstraint(Sketcher.Constraint("DistanceX", 1, 1, 1, 2, Q("12.5 mm")))
sketch17.addConstraint(Sketcher.Constraint("DistanceY", 0, 2, 0, 1, Q("7.3 mm")))
sketch17.addConstraint(Sketcher.Constraint("DistanceX", 0, 2, -1, 1, Q("54.6 mm")))
sketch17.addConstraint(Sketcher.Constraint("DistanceY", -1, 1, 0, 2, Q("24.1 mm")))
pad14 = body9.newObject("PartDesign::Pad", "Pad013")
pad14.Profile = sketch17
pad14.Length = 20.6
pad14.Reversed = True
doc.recompute()

body10 = doc.addObject("PartDesign::Body", "Body009")
body10.BaseFeature = body9
boolean3 = body7.newObject("PartDesign::Boolean", "Boolean002")
boolean3.Type = "Cut"
boolean3.addObjects([body10])
doc.recompute()

boolean4 = body8.newObject("PartDesign::Boolean", "Boolean003")
boolean4.Type = "Cut"
boolean4.addObjects([body9])
body11 = doc.addObject("PartDesign::Body", "Body010")

# Sketch on XY plane
sketch18 = body11.newObject("Sketcher::SketchObject", "Sketch017")
sketch18.AttachmentSupport = (doc.getObject("XY_Plane010"), [""])
sketch18.MapMode = "FlatFace"
sketch18.AttachmentOffset = App.Placement(V(0, 0, 16.4), App.Rotation())
add_polygon(sketch18, [(-40, 20), (-40, 10), (-32, 10), (-32, 20)])  # lines 0-3
sketch18.addConstraint(Sketcher.Constraint("Vertical", 0))
sketch18.addConstraint(Sketcher.Constraint("Horizontal", 1))
sketch18.addConstraint(Sketcher.Constraint("Vertical", 2))
sketch18.addConstraint(Sketcher.Constraint("Horizontal", 3))
sketch18.addConstraint(Sketcher.Constraint("DistanceX", 1, 1, 1, 2, Q("7.5 mm")))
sketch18.addConstraint(Sketcher.Constraint("DistanceY", 0, 2, 0, 1, Q("9.9 mm")))
sketch18.addConstraint(Sketcher.Constraint("DistanceX", 0, 2, -1, 1, Q("40 mm")))
sketch18.addConstraint(Sketcher.Constraint("DistanceY", -1, 1, 0, 2, Q("10.3 mm")))
pad15 = body11.newObject("PartDesign::Pad", "Pad014")
pad15.Profile = sketch18
pad15.Length = 10
doc.recompute()

chamfer = body11.newObject("PartDesign::Chamfer", "Chamfer")
chamfer.Base = (pad15, edges_at(pad15, [(-40, 15.25, 26.4), (-32.5, 15.25, 26.4)]))
chamfer.ChamferType = "Two distances"
chamfer.Size = 1
chamfer.Size2 = 3
chamfer.FlipDirection = True
body12 = doc.addObject("PartDesign::Body", "Body011")

# Sketch on XY plane
sketch19 = body12.newObject("Sketcher::SketchObject", "Sketch018")
sketch19.AttachmentSupport = (doc.getObject("XY_Plane011"), [""])
sketch19.MapMode = "FlatFace"
sketch19.AttachmentOffset = App.Placement(V(0, 0, 16.4), App.Rotation())
add_polygon(sketch19, [(-40, 10), (-40, 0), (-32, 0), (-32, 10)])  # lines 0-3
sketch19.addConstraint(Sketcher.Constraint("Vertical", 0))
sketch19.addConstraint(Sketcher.Constraint("Horizontal", 1))
sketch19.addConstraint(Sketcher.Constraint("Vertical", 2))
sketch19.addConstraint(Sketcher.Constraint("Horizontal", 3))
sketch19.addConstraint(Sketcher.Constraint("DistanceX", 1, 1, 1, 2, Q("7.5 mm")))
sketch19.addConstraint(Sketcher.Constraint("DistanceY", 0, 2, 0, 1, Q("9.9 mm")))
sketch19.addConstraint(Sketcher.Constraint("DistanceX", 0, 2, -1, 1, Q("40 mm")))
sketch19.addConstraint(Sketcher.Constraint("DistanceY", -1, 1, 2, 2, Q("10 mm")))
pad16 = body12.newObject("PartDesign::Pad", "Pad015")
pad16.Profile = sketch19
pad16.Length = 10
doc.recompute()

chamfer2 = body12.newObject("PartDesign::Chamfer", "Chamfer001")
chamfer2.Base = (pad16, edges_at(pad16, [(-40, 5.05, 26.4), (-32.5, 5.05, 26.4)]))
chamfer2.ChamferType = "Two distances"
chamfer2.Size = 1
chamfer2.Size2 = 3
chamfer2.FlipDirection = True
body13 = doc.addObject("PartDesign::Body", "Body012")

# Sketch on XY plane
sketch20 = body13.newObject("Sketcher::SketchObject", "Sketch019")
sketch20.AttachmentSupport = (doc.getObject("XY_Plane012"), [""])
sketch20.MapMode = "FlatFace"
sketch20.AttachmentOffset = App.Placement(V(0, 0, 16.4), App.Rotation())
add_polygon(sketch20, [(-40, 0), (-40, -10), (-32, -10), (-32, 0)])  # lines 0-3
sketch20.addConstraint(Sketcher.Constraint("Vertical", 0))
sketch20.addConstraint(Sketcher.Constraint("Horizontal", 1))
sketch20.addConstraint(Sketcher.Constraint("Vertical", 2))
sketch20.addConstraint(Sketcher.Constraint("Horizontal", 3))
sketch20.addConstraint(Sketcher.Constraint("DistanceX", 1, 1, 1, 2, Q("7.5 mm")))
sketch20.addConstraint(Sketcher.Constraint("DistanceY", 0, 2, 0, 1, Q("9.9 mm")))
sketch20.addConstraint(Sketcher.Constraint("DistanceX", 0, 2, -1, 1, Q("40 mm")))
sketch20.addConstraint(Sketcher.Constraint("DistanceY", 0, 2, -1, 1, Q("10.1 mm")))
pad17 = body13.newObject("PartDesign::Pad", "Pad016")
pad17.Profile = sketch20
pad17.Length = 10
doc.recompute()

chamfer3 = body13.newObject("PartDesign::Chamfer", "Chamfer002")
chamfer3.Base = (pad17, edges_at(pad17, [(-40, -5.15, 26.4), (-32.5, -5.15, 26.4)]))
chamfer3.ChamferType = "Two distances"
chamfer3.Size = 1
chamfer3.Size2 = 3
chamfer3.FlipDirection = True
body14 = doc.addObject("PartDesign::Body", "Body013")

# Sketch on XY plane
sketch21 = body14.newObject("Sketcher::SketchObject", "Sketch020")
sketch21.AttachmentSupport = (doc.getObject("XY_Plane013"), [""])
sketch21.MapMode = "FlatFace"
sketch21.AttachmentOffset = App.Placement(V(0, 0, 16.4), App.Rotation())
add_polygon(sketch21, [(-28, -14.3), (-28, -27.3), (-26, -27.3), (-26, -14.3)])  # lines 0-3
sketch21.addConstraint(Sketcher.Constraint("Vertical", 0))
sketch21.addConstraint(Sketcher.Constraint("Horizontal", 1))
sketch21.addConstraint(Sketcher.Constraint("Vertical", 2))
sketch21.addConstraint(Sketcher.Constraint("Horizontal", 3))
sketch21.addConstraint(Sketcher.Constraint("DistanceX", 1, 1, 1, 2, Q("2 mm")))
sketch21.addConstraint(Sketcher.Constraint("DistanceY", 0, 2, 0, 1, Q("13 mm")))
sketch21.addConstraint(Sketcher.Constraint("DistanceX", 0, 2, -1, 1, Q("27.991651 mm")))
sketch21.addConstraint(Sketcher.Constraint("DistanceY", 0, 2, -1, 1, Q("27.327318 mm")))
pad18 = body14.newObject("PartDesign::Pad", "Pad017")
pad18.Profile = sketch21
pad18.Length = 25
body15 = doc.addObject("PartDesign::Body", "Body014")

# Sketch on XY plane
sketch22 = body15.newObject("Sketcher::SketchObject", "Sketch021")
sketch22.AttachmentSupport = (doc.getObject("XY_Plane014"), [""])
sketch22.MapMode = "FlatFace"
sketch22.AttachmentOffset = App.Placement(V(0, 0, 16.4), App.Rotation())
add_polygon(sketch22, [(-30, -12.3), (-32.5, -12.3), (-32.5, -29.3), (-30, -29.3)])  # lines 0-3
sketch22.addConstraint(Sketcher.Constraint("Horizontal", 0))
sketch22.addConstraint(Sketcher.Constraint("Vertical", 1))
sketch22.addConstraint(Sketcher.Constraint("Horizontal", 2))
sketch22.addConstraint(Sketcher.Constraint("Vertical", 3))
sketch22.addConstraint(Sketcher.Constraint("DistanceY", 1, 2, 1, 1, Q("17 mm")))
sketch22.addConstraint(Sketcher.Constraint("DistanceX", 0, 2, 0, 1, Q("2.5 mm")))
sketch22.addConstraint(Sketcher.Constraint("DistanceX", 0, 2, -1, 1, Q("32.491651 mm")))
sketch22.addConstraint(Sketcher.Constraint("DistanceY", 0, 2, -1, 1, Q("12.327318 mm")))
pad19 = body15.newObject("PartDesign::Pad", "Pad018")
pad19.Profile = sketch22
pad19.Length = 25

doc.recompute()
